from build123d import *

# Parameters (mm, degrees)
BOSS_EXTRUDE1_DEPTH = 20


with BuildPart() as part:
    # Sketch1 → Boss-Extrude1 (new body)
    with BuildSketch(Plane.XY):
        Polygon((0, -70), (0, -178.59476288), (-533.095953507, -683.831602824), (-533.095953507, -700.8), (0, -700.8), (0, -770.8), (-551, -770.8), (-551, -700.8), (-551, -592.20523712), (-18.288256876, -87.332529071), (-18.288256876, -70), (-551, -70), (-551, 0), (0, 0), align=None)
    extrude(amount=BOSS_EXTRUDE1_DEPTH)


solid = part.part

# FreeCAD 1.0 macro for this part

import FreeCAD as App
import Part
import Sketcher

V = App.Vector

doc = App.newDocument("Part")
body = doc.addObject("PartDesign::Body", "Body")

sketch1 = body.newObject("Sketcher::SketchObject", "Sketch")
sketch1.AttachmentSupport = (doc.getObject("XY_Plane"), [""])
sketch1.MapMode = "FlatFace"
sketch1.addGeometry([
    Part.LineSegment(V(0, -179, 0), V(0, 0, 0)),
    Part.LineSegment(V(0, 0, 0), V(-551, 0, 0)),
    Part.LineSegment(V(-551, 0, 0), V(-551, -70, 0)),
    Part.LineSegment(V(-551, -70, 0), V(-18, -70, 0)),
    Part.LineSegment(V(-18, -70, 0), V(-18, -87, 0)),
    Part.LineSegment(V(-18, -87, 0), V(-551, -592, 0)),
    Part.LineSegment(V(-551, -592, 0), V(-551, -771, 0)),
    Part.LineSegment(V(-551, -771, 0), V(0, -771, 0)),
    Part.LineSegment(V(0, -771, 0), V(0, -701, 0)),
    Part.LineSegment(V(0, -701, 0), V(-533, -701, 0)),
    Part.LineSegment(V(-533, -701, 0), V(-533, -684, 0)),
    Part.LineSegment(V(-533, -684, 0), V(0, -179, 0)),
], False)
sketch1.addConstraint([
    Sketcher.Constraint("Coincident", 0, 2, 1, 1),
    Sketcher.Constraint("Coincident", 1, 2, 2, 1),
    Sketcher.Constraint("Coincident", 2, 2, 3, 1),
    Sketcher.Constraint("Coincident", 3, 2, 4, 1),
    Sketcher.Constraint("Coincident", 4, 2, 5, 1),
    Sketcher.Constraint("Coincident", 5, 2, 6, 1),
    Sketcher.Constraint("Coincident", 6, 2, 7, 1),
    Sketcher.Constraint("Coincident", 7, 2, 8, 1),
    Sketcher.Constraint("Coincident", 8, 2, 9, 1),
    Sketcher.Constraint("Coincident", 9, 2, 10, 1),
    Sketcher.Constraint("Coincident", 10, 2, 11, 1),
    Sketcher.Constraint("Coincident", 11, 2, 0, 1),
    Sketcher.Constraint("Vertical", 0),
    Sketcher.Constraint("Horizontal", 1),
    Sketcher.Constraint("Vertical", 2),
    Sketcher.Constraint("Horizontal", 3),
    Sketcher.Constraint("Vertical", 4),
    Sketcher.Constraint("Vertical", 6),
    Sketcher.Constraint("Horizontal", 7),
    Sketcher.Constraint("Vertical", 8),
    Sketcher.Constraint("Horizontal", 9),
    Sketcher.Constraint("Vertical", 10),
    Sketcher.Constraint("Coincident", 0, 2, -1, 1),
    Sketcher.Constraint("PointOnObject", 7, 2, -2),
    Sketcher.Constraint("Parallel", 5, 11),
    Sketcher.Constraint("Vertical", 2, 2, 5, 2),
    Sketcher.Constraint("Equal", 0, 6),
    Sketcher.Constraint("Equal", 2, 8),
    Sketcher.Constraint("DistanceX", 1, 2, 1, 1, 551.0),
    Sketcher.Constraint("DistanceY", 2, 2, 2, 1, 70.0),
    Sketcher.Constraint("DistanceY", 6, 2, -1, 1, 770.8),
    Sketcher.Constraint("DistanceY", 4, 2, 4, 1, 17.332529),
    Sketcher.Constraint("DistanceX", 3, 1, 3, 2, 532.711743),
    Sketcher.Constraint("DistanceX", 9, 2, 9, 1, 533.095954),
    Sketcher.Constraint("DistanceY", 0, 1, 0, 2, 178.594763),
])
pad1 = body.newObject("PartDesign::Pad", "Pad")
pad1.Profile = sketch1
pad1.Length = 20

doc.recompute()
